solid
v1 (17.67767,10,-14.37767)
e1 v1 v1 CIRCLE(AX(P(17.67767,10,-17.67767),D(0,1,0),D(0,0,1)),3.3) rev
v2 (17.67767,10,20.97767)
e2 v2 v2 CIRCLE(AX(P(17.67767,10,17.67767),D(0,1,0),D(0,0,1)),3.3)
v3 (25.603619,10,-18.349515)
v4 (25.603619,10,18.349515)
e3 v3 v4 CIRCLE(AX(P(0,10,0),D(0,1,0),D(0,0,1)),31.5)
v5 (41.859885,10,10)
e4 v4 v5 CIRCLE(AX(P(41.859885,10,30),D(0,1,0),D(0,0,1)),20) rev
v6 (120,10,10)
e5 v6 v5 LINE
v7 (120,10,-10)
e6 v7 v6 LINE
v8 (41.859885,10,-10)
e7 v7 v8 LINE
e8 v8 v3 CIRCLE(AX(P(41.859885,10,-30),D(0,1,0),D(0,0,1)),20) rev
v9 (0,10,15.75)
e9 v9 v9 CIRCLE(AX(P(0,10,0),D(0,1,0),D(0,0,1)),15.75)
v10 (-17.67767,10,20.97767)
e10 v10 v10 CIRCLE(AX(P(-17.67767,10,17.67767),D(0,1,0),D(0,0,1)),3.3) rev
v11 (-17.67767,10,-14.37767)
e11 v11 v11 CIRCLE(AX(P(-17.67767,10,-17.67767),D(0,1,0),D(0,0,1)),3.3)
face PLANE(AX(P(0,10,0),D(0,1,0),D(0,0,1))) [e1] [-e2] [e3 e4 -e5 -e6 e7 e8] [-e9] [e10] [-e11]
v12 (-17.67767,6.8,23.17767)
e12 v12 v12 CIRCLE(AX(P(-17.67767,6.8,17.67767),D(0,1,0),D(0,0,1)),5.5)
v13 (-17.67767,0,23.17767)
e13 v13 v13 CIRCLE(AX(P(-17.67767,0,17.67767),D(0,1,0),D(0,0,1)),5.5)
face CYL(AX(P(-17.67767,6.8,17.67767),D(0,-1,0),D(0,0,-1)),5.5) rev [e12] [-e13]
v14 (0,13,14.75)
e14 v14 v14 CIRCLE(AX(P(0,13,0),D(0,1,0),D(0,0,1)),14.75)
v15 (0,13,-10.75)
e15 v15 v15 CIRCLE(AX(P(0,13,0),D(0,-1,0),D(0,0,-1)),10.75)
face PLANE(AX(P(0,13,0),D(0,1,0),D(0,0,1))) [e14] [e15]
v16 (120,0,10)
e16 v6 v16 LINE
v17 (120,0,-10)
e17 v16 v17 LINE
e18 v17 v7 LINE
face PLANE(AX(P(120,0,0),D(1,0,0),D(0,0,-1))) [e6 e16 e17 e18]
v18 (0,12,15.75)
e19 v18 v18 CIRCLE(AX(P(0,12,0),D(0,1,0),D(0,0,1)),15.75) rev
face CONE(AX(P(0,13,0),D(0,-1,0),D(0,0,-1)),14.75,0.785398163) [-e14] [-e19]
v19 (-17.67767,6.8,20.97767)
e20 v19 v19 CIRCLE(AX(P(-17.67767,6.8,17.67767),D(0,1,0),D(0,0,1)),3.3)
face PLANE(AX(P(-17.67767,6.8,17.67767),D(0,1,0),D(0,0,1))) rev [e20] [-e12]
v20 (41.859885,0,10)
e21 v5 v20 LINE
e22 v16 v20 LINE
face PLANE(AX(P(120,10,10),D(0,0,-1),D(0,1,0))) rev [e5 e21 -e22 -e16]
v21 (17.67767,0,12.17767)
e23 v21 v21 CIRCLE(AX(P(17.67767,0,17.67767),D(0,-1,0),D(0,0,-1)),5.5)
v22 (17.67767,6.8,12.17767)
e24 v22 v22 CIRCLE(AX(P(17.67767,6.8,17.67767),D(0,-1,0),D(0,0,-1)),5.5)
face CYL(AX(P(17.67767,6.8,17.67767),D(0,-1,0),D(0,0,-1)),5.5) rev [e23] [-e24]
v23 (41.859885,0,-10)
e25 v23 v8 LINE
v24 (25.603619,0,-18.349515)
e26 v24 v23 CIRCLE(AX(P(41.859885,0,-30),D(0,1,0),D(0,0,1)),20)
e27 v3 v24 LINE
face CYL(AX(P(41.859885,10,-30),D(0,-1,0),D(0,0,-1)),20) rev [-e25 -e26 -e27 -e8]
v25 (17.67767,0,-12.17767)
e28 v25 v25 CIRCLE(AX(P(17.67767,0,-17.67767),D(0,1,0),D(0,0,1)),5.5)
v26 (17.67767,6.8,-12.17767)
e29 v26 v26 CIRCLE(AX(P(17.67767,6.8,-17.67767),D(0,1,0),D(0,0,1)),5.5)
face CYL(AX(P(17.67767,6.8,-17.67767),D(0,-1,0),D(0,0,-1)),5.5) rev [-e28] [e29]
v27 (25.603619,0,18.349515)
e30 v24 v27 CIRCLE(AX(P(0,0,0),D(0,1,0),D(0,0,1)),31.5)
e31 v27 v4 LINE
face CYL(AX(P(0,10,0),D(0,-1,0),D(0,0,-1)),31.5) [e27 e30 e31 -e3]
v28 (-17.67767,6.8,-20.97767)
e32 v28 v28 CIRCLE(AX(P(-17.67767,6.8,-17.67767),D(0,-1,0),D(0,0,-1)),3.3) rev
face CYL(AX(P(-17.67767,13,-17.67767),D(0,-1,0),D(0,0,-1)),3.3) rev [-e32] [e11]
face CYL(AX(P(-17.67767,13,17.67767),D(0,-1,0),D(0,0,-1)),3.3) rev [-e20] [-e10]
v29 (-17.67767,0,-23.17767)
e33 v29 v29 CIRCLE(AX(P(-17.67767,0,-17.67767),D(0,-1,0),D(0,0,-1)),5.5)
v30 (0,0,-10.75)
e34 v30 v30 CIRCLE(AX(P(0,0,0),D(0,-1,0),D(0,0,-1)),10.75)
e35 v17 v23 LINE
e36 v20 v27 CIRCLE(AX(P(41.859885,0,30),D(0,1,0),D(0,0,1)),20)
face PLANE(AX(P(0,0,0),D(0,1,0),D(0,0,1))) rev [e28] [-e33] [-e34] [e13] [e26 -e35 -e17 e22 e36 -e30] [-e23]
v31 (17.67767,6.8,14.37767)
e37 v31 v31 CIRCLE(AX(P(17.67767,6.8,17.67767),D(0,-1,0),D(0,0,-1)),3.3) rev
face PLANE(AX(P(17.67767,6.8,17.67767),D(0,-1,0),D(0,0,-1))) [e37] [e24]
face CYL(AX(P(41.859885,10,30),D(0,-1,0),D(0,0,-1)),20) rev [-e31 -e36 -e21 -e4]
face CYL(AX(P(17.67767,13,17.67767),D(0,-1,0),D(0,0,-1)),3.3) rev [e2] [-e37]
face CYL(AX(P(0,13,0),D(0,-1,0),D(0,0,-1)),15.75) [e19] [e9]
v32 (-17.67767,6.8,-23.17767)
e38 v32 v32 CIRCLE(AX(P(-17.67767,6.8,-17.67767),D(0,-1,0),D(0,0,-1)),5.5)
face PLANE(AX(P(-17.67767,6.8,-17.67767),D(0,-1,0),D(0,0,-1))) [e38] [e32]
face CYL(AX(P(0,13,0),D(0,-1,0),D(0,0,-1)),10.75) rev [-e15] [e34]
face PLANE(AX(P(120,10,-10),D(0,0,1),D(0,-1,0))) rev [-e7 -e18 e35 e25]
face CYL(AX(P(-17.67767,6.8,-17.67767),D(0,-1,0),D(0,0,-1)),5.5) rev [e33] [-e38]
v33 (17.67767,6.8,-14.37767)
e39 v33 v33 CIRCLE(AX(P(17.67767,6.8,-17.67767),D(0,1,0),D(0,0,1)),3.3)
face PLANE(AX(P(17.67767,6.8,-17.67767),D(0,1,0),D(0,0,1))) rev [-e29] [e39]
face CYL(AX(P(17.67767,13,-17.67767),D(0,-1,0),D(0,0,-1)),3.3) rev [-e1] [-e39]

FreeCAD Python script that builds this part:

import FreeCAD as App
import Part
import Sketcher
from FreeCAD import Vector
Q = App.Units.Quantity


def edges_at(feature, points):
    """Names of the edges that pass closest to the given points."""
    edges = feature.Shape.Edges
    near = lambda p: min(range(len(edges)), key=lambda i: edges[i].distToShape(Part.Vertex(*p))[0])
    return sorted({f"Edge{near(p) + 1}" for p in points})

doc = App.newDocument("Part")
body = doc.addObject("PartDesign::Body", "Body")

# Sketch on XZ plane
sketch1 = doc.addObject("Sketcher::SketchObject", "Sketch")
body.addObject(sketch1)
sketch1.AttachmentSupport = (doc.XZ_Plane, [""])
sketch1.MapMode = "FlatFace"
sketch1.addGeometry(Part.Circle(Vector(0, 0, 0), Vector(0, 0, 1), 32), False)
sketch1.addConstraint([
    Sketcher.Constraint("Coincident", 0, 3, -1, 1),
    Sketcher.Constraint("Diameter", 0, Q("63 mm")),
])
pad1 = doc.addObject("PartDesign::Pad", "Pad")
body.addObject(pad1)
pad1.Profile = sketch1
pad1.Length = 10
pad1.Reversed = True

# Sketch on XZ plane
sketch2 = doc.addObject("Sketcher::SketchObject", "Sketch001")
body.addObject(sketch2)
sketch2.AttachmentSupport = (doc.XZ_Plane, [""])
sketch2.MapMode = "FlatFace"
sketch2.AttachmentOffset = App.Placement(Vector(0, 0, -10), App.Rotation())
sketch2.addGeometry(Part.Circle(Vector(0, 0, 0), Vector(0, 0, 1), 16), False)
sketch2.addConstraint([
    Sketcher.Constraint("Coincident", 0, 3, -1, 1),
    Sketcher.Constraint("Diameter", 0, Q("31.5 mm")),
])
pad2 = doc.addObject("PartDesign::Pad", "Pad001")
body.addObject(pad2)
pad2.Profile = sketch2
pad2.Length = 3
pad2.Reversed = True

# Sketch on XZ plane
sketch3 = doc.addObject("Sketcher::SketchObject", "Sketch002")
body.addObject(sketch3)
sketch3.AttachmentSupport = (doc.XZ_Plane, [""])
sketch3.MapMode = "FlatFace"
sketch3.addGeometry([
    Part.Circle(Vector(17.7, 17.7, 0), Vector(0, 0, 1), 3.3),
    Part.Circle(Vector(-17.7, 17.7, 0), Vector(0, 0, 1), 3.3),
    Part.Circle(Vector(-17.7, -17.7, 0), Vector(0, 0, 1), 3.3),
    Part.Circle(Vector(17.7, -17.7, 0), Vector(0, 0, 1), 3.3),
], False)
sketch3.addConstraint([
    Sketcher.Constraint("Equal", 0, 1),
    Sketcher.Constraint("Equal", 1, 2),
    Sketcher.Constraint("Equal", 2, 3),
    Sketcher.Constraint("Symmetric", 0, 3, 2, 3, -1, 1),
    Sketcher.Constraint("Symmetric", 1, 3, 3, 3, -1, 1),
    Sketcher.Constraint("Symmetric", 0, 3, 1, 3, -2),
    Sketcher.Constraint("Diameter", 0, Q("6.6 mm")),
    Sketcher.Constraint("DistanceX", -1, 1, 0, 3, Q("17.67767 mm")),
    Sketcher.Constraint("DistanceY", -1, 1, 0, 3, Q("17.67767 mm")),
])
pocket1 = doc.addObject("PartDesign::Pocket", "Pocket")
body.addObject(pocket1)
pocket1.Profile = sketch3
pocket1.Type = "ThroughAll"

# Sketch on XZ plane
sketch4 = doc.addObject("Sketcher::SketchObject", "Sketch003")
body.addObject(sketch4)
sketch4.AttachmentSupport = (doc.XZ_Plane, [""])
sketch4.MapMode = "FlatFace"
sketch4.addGeometry([
    Part.Circle(Vector(18, 18, 0), Vector(0, 0, 1), 6),
    Part.Circle(Vector(-18, 18, 0), Vector(0, 0, 1), 6),
    Part.Circle(Vector(-18, -18, 0), Vector(0, 0, 1), 6),
    Part.Circle(Vector(18, -18, 0), Vector(0, 0, 1), 6),
], False)
sketch4.addConstraint([
    Sketcher.Constraint("Equal", 0, 1),
    Sketcher.Constraint("Equal", 1, 2),
    Sketcher.Constraint("Equal", 2, 3),
    Sketcher.Constraint("Symmetric", 0, 3, 2, 3, -1, 1),
    Sketcher.Constraint("Symmetric", 1, 3, 3, 3, -1, 1),
    Sketcher.Constraint("Symmetric", 0, 3, 1, 3, -2),
    Sketcher.Constraint("Diameter", 0, Q("11 mm")),
    Sketcher.Constraint("DistanceX", -1, 1, 0, 3, Q("17.67767 mm")),
    Sketcher.Constraint("DistanceY", -1, 1, 0, 3, Q("17.67767 mm")),
])
pocket2 = doc.addObject("PartDesign::Pocket", "Pocket001")
body.addObject(pocket2)
pocket2.Profile = sketch4
pocket2.Length = 6.8

# Sketch on YZ plane
sketch5 = doc.addObject("Sketcher::SketchObject", "Sketch004")
body.addObject(sketch5)
sketch5.AttachmentSupport = (doc.YZ_Plane, [""])
sketch5.MapMode = "FlatFace"
sketch5.addGeometry([
    Part.LineSegment(Vector(10, 10, 0), Vector(0, 10, 0)),
    Part.LineSegment(Vector(0, 10, 0), Vector(0, -10, 0)),
    Part.LineSegment(Vector(0, -10, 0), Vector(10, -10, 0)),
    Part.LineSegment(Vector(10, -10, 0), Vector(10, 10, 0)),
], False)
sketch5.addConstraint([
    Sketcher.Constraint("Coincident", 0, 2, 1, 1),
    Sketcher.Constraint("Coincident", 1, 2, 2, 1),
    Sketcher.Constraint("Coincident", 2, 2, 3, 1),
    Sketcher.Constraint("Coincident", 3, 2, 0, 1),
    Sketcher.Constraint("Horizontal", 0),
    Sketcher.Constraint("Vertical", 1),
    Sketcher.Constraint("Horizontal", 2),
    Sketcher.Constraint("Vertical", 3),
    Sketcher.Constraint("Symmetric", 0, 2, 1, 2, -1, 1),
    Sketcher.Constraint("DistanceX", 0, 2, 0, 1, Q("10 mm")),
    Sketcher.Constraint("DistanceY", 1, 2, 1, 1, Q("20 mm")),
])
pad3 = doc.addObject("PartDesign::Pad", "Pad002")
body.addObject(pad3)
pad3.Profile = sketch5
pad3.Length = 120

# Sketch on XZ plane
sketch6 = doc.addObject("Sketcher::SketchObject", "Sketch005")
body.addObject(sketch6)
sketch6.AttachmentSupport = (doc.XZ_Plane, [""])
sketch6.MapMode = "FlatFace"
sketch6.addGeometry(Part.Circle(Vector(0, 0, 0), Vector(0, 0, 1), 11), False)
sketch6.addConstraint([
    Sketcher.Constraint("Coincident", 0, 3, -1, 1),
    Sketcher.Constraint("Diameter", 0, Q("21.5 mm")),
])
pocket3 = doc.addObject("PartDesign::Pocket", "Pocket002")
body.addObject(pocket3)
pocket3.Profile = sketch6
pocket3.Type = "ThroughAll"
doc.recompute()

chamfer = doc.addObject("PartDesign::Chamfer", "Chamfer")
body.addObject(chamfer)
chamfer.Base = (pocket3, edges_at(pocket3, [(0, 13, -15.75)]))
chamfer.Size = 1
doc.recompute()

fillet = doc.addObject("PartDesign::Fillet", "Fillet")
body.addObject(fillet)
fillet.Base = (chamfer, edges_at(chamfer, [(29.871, 5, -10)]))
fillet.Radius = 20
doc.recompute()

fillet2 = doc.addObject("PartDesign::Fillet", "Fillet001")
body.addObject(fillet2)
fillet2.Base = (fillet, edges_at(fillet, [(29.871, 5, 10)]))
fillet2.Radius = 20

doc.recompute()
